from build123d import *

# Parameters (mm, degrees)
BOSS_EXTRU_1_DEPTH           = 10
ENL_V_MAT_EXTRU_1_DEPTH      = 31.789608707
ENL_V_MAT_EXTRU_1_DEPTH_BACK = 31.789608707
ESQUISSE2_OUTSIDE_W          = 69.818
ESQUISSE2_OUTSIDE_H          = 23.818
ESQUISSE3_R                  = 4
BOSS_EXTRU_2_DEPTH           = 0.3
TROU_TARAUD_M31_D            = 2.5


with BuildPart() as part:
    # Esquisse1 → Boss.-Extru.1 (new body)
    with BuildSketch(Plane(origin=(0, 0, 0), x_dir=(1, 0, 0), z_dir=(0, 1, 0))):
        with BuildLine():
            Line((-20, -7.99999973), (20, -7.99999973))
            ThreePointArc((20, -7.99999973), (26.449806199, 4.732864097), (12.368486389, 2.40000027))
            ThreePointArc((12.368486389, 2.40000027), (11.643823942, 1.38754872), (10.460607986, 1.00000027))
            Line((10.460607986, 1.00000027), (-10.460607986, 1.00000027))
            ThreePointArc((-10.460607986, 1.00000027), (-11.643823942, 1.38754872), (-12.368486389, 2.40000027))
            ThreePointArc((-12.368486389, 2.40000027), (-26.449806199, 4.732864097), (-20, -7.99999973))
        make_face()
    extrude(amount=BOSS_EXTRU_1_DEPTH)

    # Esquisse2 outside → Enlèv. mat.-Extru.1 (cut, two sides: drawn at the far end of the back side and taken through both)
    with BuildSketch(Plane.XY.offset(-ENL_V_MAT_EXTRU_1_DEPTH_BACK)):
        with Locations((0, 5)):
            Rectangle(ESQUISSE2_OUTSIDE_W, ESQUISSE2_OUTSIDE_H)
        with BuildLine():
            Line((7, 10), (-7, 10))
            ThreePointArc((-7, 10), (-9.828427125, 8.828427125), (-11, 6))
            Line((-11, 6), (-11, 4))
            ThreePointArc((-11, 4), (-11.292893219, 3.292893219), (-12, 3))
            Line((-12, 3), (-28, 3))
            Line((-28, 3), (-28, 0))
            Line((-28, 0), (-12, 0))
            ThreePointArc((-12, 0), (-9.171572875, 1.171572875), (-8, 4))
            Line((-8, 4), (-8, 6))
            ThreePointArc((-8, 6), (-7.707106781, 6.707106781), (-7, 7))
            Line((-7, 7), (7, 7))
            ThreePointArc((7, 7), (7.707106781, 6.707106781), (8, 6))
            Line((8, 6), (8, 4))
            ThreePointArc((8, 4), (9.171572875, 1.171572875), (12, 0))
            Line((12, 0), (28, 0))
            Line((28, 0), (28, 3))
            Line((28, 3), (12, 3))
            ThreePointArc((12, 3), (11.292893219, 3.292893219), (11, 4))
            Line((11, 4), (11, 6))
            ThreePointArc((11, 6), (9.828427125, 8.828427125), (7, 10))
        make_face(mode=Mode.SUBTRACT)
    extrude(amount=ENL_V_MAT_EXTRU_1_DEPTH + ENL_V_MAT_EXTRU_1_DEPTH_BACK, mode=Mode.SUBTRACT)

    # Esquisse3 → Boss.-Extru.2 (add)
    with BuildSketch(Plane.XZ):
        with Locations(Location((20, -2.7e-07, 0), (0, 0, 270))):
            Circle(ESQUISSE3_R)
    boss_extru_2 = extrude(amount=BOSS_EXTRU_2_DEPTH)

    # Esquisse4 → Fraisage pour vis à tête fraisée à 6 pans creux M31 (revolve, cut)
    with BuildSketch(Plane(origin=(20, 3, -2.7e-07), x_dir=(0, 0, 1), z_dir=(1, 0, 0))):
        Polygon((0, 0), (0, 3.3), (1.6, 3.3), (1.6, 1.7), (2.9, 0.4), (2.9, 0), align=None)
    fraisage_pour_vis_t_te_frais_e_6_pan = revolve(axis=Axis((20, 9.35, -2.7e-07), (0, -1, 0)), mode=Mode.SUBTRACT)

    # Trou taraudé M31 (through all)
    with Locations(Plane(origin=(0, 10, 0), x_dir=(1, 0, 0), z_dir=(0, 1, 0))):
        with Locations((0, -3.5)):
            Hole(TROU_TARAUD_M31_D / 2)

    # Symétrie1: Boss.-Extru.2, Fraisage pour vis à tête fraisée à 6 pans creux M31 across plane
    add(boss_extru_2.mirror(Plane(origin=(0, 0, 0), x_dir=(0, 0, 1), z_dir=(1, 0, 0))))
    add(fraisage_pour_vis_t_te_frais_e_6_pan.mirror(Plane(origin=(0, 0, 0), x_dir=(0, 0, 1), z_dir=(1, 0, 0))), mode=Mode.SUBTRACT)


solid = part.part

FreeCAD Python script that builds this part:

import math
import FreeCAD as App
import Part
import Sketcher
from FreeCAD import Vector
Q = App.Units.Quantity

doc = App.newDocument("Part")
params = doc.addObject("Spreadsheet::Sheet", "Params")
for row, (alias, value) in enumerate([
    ("sketch1_radius", "8 mm"),
    ("sketch1_radius2", "2 mm"),
    ("sketch1_width", "40 mm"),
    ("pad1_length", "10 mm"),
    ("sketch2_radius", "4 mm"),
    ("sketch2_radius2", "1 mm"),
    ("sketch2_width", "14 mm"),
    ("sketch2_width2", "16 mm"),
    ("sketch2_height", "2 mm"),
    ("sketch3_diameter", "8 mm"),
    ("pad2_length", "0.3 mm"),
    ("sketch4_width", "3.3 mm"),
    ("sketch4_width2", "0.4 mm"),
    ("sketch4_width3", "1.6 mm"),
    ("groove_angle", "360 deg"),
    ("sketch5_diameter", "2.5 mm"),
    ("hole_diameter", "2.5 mm"),
], start=1):
    params.set(f"A{row}", alias)
    params.set(f"B{row}", "=" + value)
    params.setAlias(f"B{row}", alias)

body = doc.addObject("PartDesign::Body", "Body")

# Sketch on XZ plane
sketch1 = body.newObject("Sketcher::SketchObject", "Sketch")
sketch1.AttachmentSupport = (doc.getObject("XZ_Plane"), [""])
sketch1.MapMode = "FlatFace"
sketch1.addGeometry([
    Part.LineSegment(Vector(-20, 8, 0), Vector(20, 8, 0)),  # 0
    Part.ArcOfCircle(Part.Circle(Vector(20, 0, 0), Vector(0, 0, 1), 8), math.radians(-163), math.radians(90)),  # 1
    Part.ArcOfCircle(Part.Circle(Vector(10.5, -3, 0), Vector(0, 0, 1), 2), math.radians(17), math.radians(90)),  # 2
    Part.LineSegment(Vector(10.5, -1, 0), Vector(-10.5, -1, 0)),  # 3
    Part.ArcOfCircle(Part.Circle(Vector(-10.5, -3, 0), Vector(0, 0, 1), 2), math.radians(90), math.radians(163)),  # 4
    Part.ArcOfCircle(Part.Circle(Vector(-20, 0, 0), Vector(0, 0, 1), 8), math.radians(90), math.radians(343)),  # 5
], False)
sketch1.addConstraint([
    Sketcher.Constraint("Tangent", 0, 2, 1, 2),
    Sketcher.Constraint("Tangent", 1, 1, 2, 1),
    Sketcher.Constraint("Tangent", 2, 2, 3, 1),
    Sketcher.Constraint("Tangent", 3, 2, 4, 1),
    Sketcher.Constraint("Tangent", 4, 2, 5, 2),
    Sketcher.Constraint("Tangent", 5, 1, 0, 1),
    Sketcher.Constraint("Horizontal", 0),
    Sketcher.Constraint("Horizontal", 3),
    Sketcher.Constraint("Equal", 2, 4),
    Sketcher.Constraint("Equal", 1, 5),
    Sketcher.Constraint("Symmetric", 1, 3, 5, 3, -1, 1),
    Sketcher.Constraint("Radius", 1, 8.0),
    Sketcher.Constraint("Radius", 2, 2.0),
    Sketcher.Constraint("DistanceX", 0, 1, 0, 2, 40.0),
    Sketcher.Constraint("DistanceY", 2, 3, -1, 1, 3.0),
])
sketch1.setExpression("Constraints[11]", "Params.sketch1_radius")
sketch1.setExpression("Constraints[12]", "Params.sketch1_radius2")
sketch1.setExpression("Constraints[13]", "Params.sketch1_width")
pad1 = body.newObject("PartDesign::Pad", "Pad")
pad1.Profile = sketch1
pad1.setExpression("Length", "Params.pad1_length")
pad1.Reversed = True

# Sketch on XY plane
sketch2 = body.newObject("Sketcher::SketchObject", "Sketch001")
sketch2.AttachmentSupport = (doc.getObject("XY_Plane"), [""])
sketch2.MapMode = "FlatFace"
sketch2.addGeometry([
    Part.LineSegment(Vector(-34.9, 16.9, 0), Vector(-34.9, -6.9, 0)),  # 0
    Part.LineSegment(Vector(-34.9, -6.9, 0), Vector(34.9, -6.9, 0)),  # 1
    Part.LineSegment(Vector(34.9, -6.9, 0), Vector(34.9, 16.9, 0)),  # 2
    Part.LineSegment(Vector(34.9, 16.9, 0), Vector(-34.9, 16.9, 0)),  # 3
    Part.LineSegment(Vector(-7, 10, 0), Vector(7, 10, 0)),  # 4
    Part.ArcOfCircle(Part.Circle(Vector(7, 6, 0), Vector(0, 0, 1), 4), math.radians(0), math.radians(90)),  # 5
    Part.LineSegment(Vector(11, 6, 0), Vector(11, 4, 0)),  # 6
    Part.ArcOfCircle(Part.Circle(Vector(12, 4, 0), Vector(0, 0, 1), 1), math.radians(-180), math.radians(-90)),  # 7
    Part.LineSegment(Vector(12, 3, 0), Vector(28, 3, 0)),  # 8
    Part.LineSegment(Vector(28, 3, 0), Vector(28, 0, 0)),  # 9
    Part.LineSegment(Vector(28, 0, 0), Vector(12, 0, 0)),  # 10
    Part.ArcOfCircle(Part.Circle(Vector(12, 4, 0), Vector(0, 0, 1), 4), math.radians(180), math.radians(270)),  # 11
    Part.LineSegment(Vector(8, 4, 0), Vector(8, 6, 0)),  # 12
    Part.ArcOfCircle(Part.Circle(Vector(7, 6, 0), Vector(0, 0, 1), 1), math.radians(0), math.radians(90)),  # 13
    Part.LineSegment(Vector(7, 7, 0), Vector(-7, 7, 0)),  # 14
    Part.ArcOfCircle(Part.Circle(Vector(-7, 6, 0), Vector(0, 0, 1), 1), math.radians(90), math.radians(180)),  # 15
    Part.LineSegment(Vector(-8, 6, 0), Vector(-8, 4, 0)),  # 16
    Part.ArcOfCircle(Part.Circle(Vector(-12, 4, 0), Vector(0, 0, 1), 4), math.radians(-90), math.radians(0)),  # 17
    Part.LineSegment(Vector(-12, 0, 0), Vector(-28, 0, 0)),  # 18
    Part.LineSegment(Vector(-28, 0, 0), Vector(-28, 3, 0)),  # 19
    Part.LineSegment(Vector(-28, 3, 0), Vector(-12, 3, 0)),  # 20
    Part.ArcOfCircle(Part.Circle(Vector(-12, 4, 0), Vector(0, 0, 1), 1), math.radians(-90), math.radians(0)),  # 21
    Part.LineSegment(Vector(-11, 4, 0), Vector(-11, 6, 0)),  # 22
    Part.ArcOfCircle(Part.Circle(Vector(-7, 6, 0), Vector(0, 0, 1), 4), math.radians(90), math.radians(180)),  # 23
], False)
sketch2.addConstraint([
    Sketcher.Constraint("Coincident", 0, 2, 1, 1),
    Sketcher.Constraint("Coincident", 1, 2, 2, 1),
    Sketcher.Constraint("Coincident", 2, 2, 3, 1),
    Sketcher.Constraint("Coincident", 3, 2, 0, 1),
    Sketcher.Constraint("Tangent", 4, 2, 5, 2),
    Sketcher.Constraint("Tangent", 5, 1, 6, 1),
    Sketcher.Constraint("Tangent", 6, 2, 7, 1),
    Sketcher.Constraint("Tangent", 7, 2, 8, 1),
    Sketcher.Constraint("Coincident", 8, 2, 9, 1),
    Sketcher.Constraint("Coincident", 9, 2, 10, 1),
    Sketcher.Constraint("Tangent", 10, 2, 11, 2),
    Sketcher.Constraint("Tangent", 11, 1, 12, 1),
    Sketcher.Constraint("Tangent", 12, 2, 13, 1),
    Sketcher.Constraint("Tangent", 13, 2, 14, 1),
    Sketcher.Constraint("Tangent", 14, 2, 15, 1),
    Sketcher.Constraint("Tangent", 15, 2, 16, 1),
    Sketcher.Constraint("Tangent", 16, 2, 17, 2),
    Sketcher.Constraint("Tangent", 17, 1, 18, 1),
    Sketcher.Constraint("Coincident", 18, 2, 19, 1),
    Sketcher.Constraint("Coincident", 19, 2, 20, 1),
    Sketcher.Constraint("Tangent", 20, 2, 21, 1),
    Sketcher.Constraint("Tangent", 21, 2, 22, 1),
    Sketcher.Constraint("Tangent", 22, 2, 23, 2),
    Sketcher.Constraint("Tangent", 23, 1, 4, 1),
    Sketcher.Constraint("Vertical", 0),
    Sketcher.Constraint("Horizontal", 1),
    Sketcher.Constraint("Vertical", 2),
    Sketcher.Constraint("Horizontal", 3),
    Sketcher.Constraint("Horizontal", 4),
    Sketcher.Constraint("Vertical", 6),
    Sketcher.Constraint("Horizontal", 8),
    Sketcher.Constraint("Vertical", 9),
    Sketcher.Constraint("Horizontal", 10),
    Sketcher.Constraint("Vertical", 12),
    Sketcher.Constraint("Horizontal", 14),
    Sketcher.Constraint("Vertical", 16),
    Sketcher.Constraint("Horizontal", 18),
    Sketcher.Constraint("Vertical", 19),
    Sketcher.Constraint("Horizontal", 20),
    Sketcher.Constraint("Vertical", 22),
    Sketcher.Constraint("Coincident", 11, 3, 7, 3),
    Sketcher.Constraint("Coincident", 13, 3, 5, 3),
    Sketcher.Constraint("Coincident", 21, 3, 17, 3),
    Sketcher.Constraint("Coincident", 23, 3, 15, 3),
    Sketcher.Constraint("Equal", 5, 11),
    Sketcher.Constraint("Equal", 13, 15),
    Sketcher.Constraint("Equal", 11, 17),
    Sketcher.Constraint("Symmetric", 10, 2, 17, 1, -1, 1),
    Sketcher.Constraint("Symmetric", 9, 2, 18, 2, -2),
    Sketcher.Constraint("Radius", 5, 4.0),
    Sketcher.Constraint("Radius", 7, 1.0),
    Sketcher.Constraint("DistanceX", 4, 1, 4, 2, 14.0),
    Sketcher.Constraint("DistanceX", 8, 1, 8, 2, 16.0),
    Sketcher.Constraint("DistanceY", 6, 2, 6, 1, 2.0),
    Sketcher.Constraint("DistanceX", 1, 1, 1, 2, 69.818),
    Sketcher.Constraint("DistanceY", 0, 2, 0, 1, 23.818),
    Sketcher.Constraint("DistanceX", 0, 2, -1, 1, 34.909),
    Sketcher.Constraint("DistanceY", 0, 2, -1, 1, 6.909),
])
sketch2.setExpression("Constraints[49]", "Params.sketch2_radius")
sketch2.setExpression("Constraints[50]", "Params.sketch2_radius2")
sketch2.setExpression("Constraints[51]", "Params.sketch2_width")
sketch2.setExpression("Constraints[52]", "Params.sketch2_width2")
sketch2.setExpression("Constraints[53]", "Params.sketch2_height")
pocket1 = body.newObject("PartDesign::Pocket", "Pocket")
pocket1.Profile = sketch2
pocket1.Type = "ThroughAll"
pocket1.Midplane = True

# Sketch on XZ plane
sketch3 = body.newObject("Sketcher::SketchObject", "Sketch002")
sketch3.AttachmentSupport = (doc.getObject("XZ_Plane"), [""])
sketch3.MapMode = "FlatFace"
sketch3.addGeometry(Part.Circle(Vector(20, 0, 0), Vector(0, 0, 1), 4), False)
sketch3.addConstraint([
    Sketcher.Constraint("PointOnObject", 0, 3, -1),
    Sketcher.Constraint("Diameter", 0, 8.0),
    Sketcher.Constraint("DistanceX", -1, 1, 0, 3, 20.0),
])
sketch3.setExpression("Constraints[1]", "Params.sketch3_diameter")
pad2 = body.newObject("PartDesign::Pad", "Pad001")
pad2.Profile = sketch3
pad2.setExpression("Length", "Params.pad2_length")

# Sketch on YZ plane
sketch4 = body.newObject("Sketcher::SketchObject", "Sketch003")
sketch4.AttachmentSupport = (doc.getObject("YZ_Plane"), [""])
sketch4.MapMode = "FlatFace"
sketch4.AttachmentOffset = App.Placement(Vector(0, 0, 20), App.Rotation())
sketch4.addGeometry([
    Part.LineSegment(Vector(-0.3, 0, 0), Vector(3, 0, 0)),  # 0
    Part.LineSegment(Vector(3, 0, 0), Vector(3, 2.9, 0)),  # 1
    Part.LineSegment(Vector(3, 2.9, 0), Vector(2.6, 2.9, 0)),  # 2
    Part.LineSegment(Vector(2.6, 2.9, 0), Vector(1.3, 1.6, 0)),  # 3
    Part.LineSegment(Vector(1.3, 1.6, 0), Vector(-0.3, 1.6, 0)),  # 4
    Part.LineSegment(Vector(-0.3, 1.6, 0), Vector(-0.3, 0, 0)),  # 5
], False)
sketch4.addConstraint([
    Sketcher.Constraint("Coincident", 0, 2, 1, 1),
    Sketcher.Constraint("Coincident", 1, 2, 2, 1),
    Sketcher.Constraint("Coincident", 2, 2, 3, 1),
    Sketcher.Constraint("Coincident", 3, 2, 4, 1),
    Sketcher.Constraint("Coincident", 4, 2, 5, 1),
    Sketcher.Constraint("Coincident", 5, 2, 0, 1),
    Sketcher.Constraint("Horizontal", 0),
    Sketcher.Constraint("Vertical", 1),
    Sketcher.Constraint("Horizontal", 2),
    Sketcher.Constraint("Horizontal", 4),
    Sketcher.Constraint("Vertical", 5),
    Sketcher.Constraint("PointOnObject", 0, 2, -1),
    Sketcher.Constraint("Equal", 4, 5),
    Sketcher.Constraint("Angle", 3, Q("-135 deg")),
    Sketcher.Constraint("DistanceX", 0, 1, 0, 2, 3.3),
    Sketcher.Constraint("DistanceX", 2, 2, 2, 1, 0.4),
    Sketcher.Constraint("DistanceX", 4, 2, 4, 1, 1.6),
    Sketcher.Constraint("DistanceX", -1, 1, 0, 2, 3.0),
])
sketch4.setExpression("Constraints[14]", "Params.sketch4_width")
sketch4.setExpression("Constraints[15]", "Params.sketch4_width2")
sketch4.setExpression("Constraints[16]", "Params.sketch4_width3")
groove = body.newObject("PartDesign::Groove", "Groove")
groove.Profile = sketch4
groove.ReferenceAxis = (sketch4, ["H_Axis"])
groove.setExpression("Angle", "Params.groove_angle")

# Sketch on XZ plane
sketch5 = body.newObject("Sketcher::SketchObject", "Sketch004")
sketch5.AttachmentSupport = (doc.getObject("XZ_Plane"), [""])
sketch5.MapMode = "FlatFace"
sketch5.AttachmentOffset = App.Placement(Vector(0, 0, -10), App.Rotation())
sketch5.addGeometry(Part.Circle(Vector(0, 3.5, 0), Vector(0, 0, 1), 1.2), False)
sketch5.addConstraint([
    Sketcher.Constraint("PointOnObject", 0, 3, -2),
    Sketcher.Constraint("Diameter", 0, 2.5),
    Sketcher.Constraint("DistanceY", -1, 1, 0, 3, 3.5),
])
sketch5.setExpression("Constraints[1]", "Params.sketch5_diameter")
doc.recompute()
hole = body.newObject("PartDesign::Hole", "Hole")
hole.Profile = sketch5
hole.ThreadType = "None"
hole.setExpression("Diameter", "Params.hole_diameter")
hole.DepthType = "ThroughAll"
hole.Reversed = True
doc.recompute()

mirrored = body.newObject("PartDesign::Mirrored", "Mirrored")
mirrored.Originals = [pad2, groove]
mirrored.MirrorPlane = (doc.getObject("YZ_Plane"), [""])
body.Tip = mirrored

doc.recompute()
